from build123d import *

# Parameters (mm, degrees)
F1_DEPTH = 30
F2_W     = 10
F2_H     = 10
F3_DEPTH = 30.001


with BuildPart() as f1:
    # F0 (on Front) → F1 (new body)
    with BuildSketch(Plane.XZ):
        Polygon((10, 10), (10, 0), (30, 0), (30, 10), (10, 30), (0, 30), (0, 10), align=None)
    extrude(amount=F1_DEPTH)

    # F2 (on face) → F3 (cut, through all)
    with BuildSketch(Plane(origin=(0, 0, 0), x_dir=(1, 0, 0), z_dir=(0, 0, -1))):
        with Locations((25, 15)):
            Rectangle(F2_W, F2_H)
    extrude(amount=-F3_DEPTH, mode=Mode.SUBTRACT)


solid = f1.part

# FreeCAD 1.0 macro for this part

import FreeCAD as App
import Part
import Sketcher


def add_polygon(sketch, points):
    """Adds a closed chain of lines whose ends are joined by coincident constraints."""
    first, n = sketch.GeometryCount, len(points)
    for a, b in zip(points, points[1:] + points[:1]):
        sketch.addGeometry(Part.LineSegment(App.Vector(*a, 0), App.Vector(*b, 0)), False)
    for i in range(n):
        sketch.addConstraint(Sketcher.Constraint("Coincident", first + i, 2, first + (i + 1) % n, 1))

doc = App.newDocument("Part")
body = doc.addObject("PartDesign::Body", "Body")

# Sketch on XZ plane
sketch1 = doc.addObject("Sketcher::SketchObject", "Sketch")
body.addObject(sketch1)
sketch1.AttachmentSupport = (doc.XZ_Plane, [""])
sketch1.MapMode = "FlatFace"
add_polygon(sketch1, [(10, 10), (10, 0), (30, 0), (30, 10), (10, 30), (0, 30), (0, 10)])  # lines 0-6
sketch1.addConstraint(Sketcher.Constraint("Vertical", 0))
sketch1.addConstraint(Sketcher.Constraint("Horizontal", 1))
sketch1.addConstraint(Sketcher.Constraint("Vertical", 2))
sketch1.addConstraint(Sketcher.Constraint("Horizontal", 4))
sketch1.addConstraint(Sketcher.Constraint("Vertical", 5))
sketch1.addConstraint(Sketcher.Constraint("Horizontal", 6))
sketch1.addConstraint(Sketcher.Constraint("PointOnObject", 0, 2, -1))
sketch1.addConstraint(Sketcher.Constraint("PointOnObject", 4, 2, -2))
sketch1.addConstraint(Sketcher.Constraint("Horizontal", 2, 2, 5, 2))
sketch1.addConstraint(Sketcher.Constraint("Vertical", 0, 2, 3, 2))
sketch1.addConstraint(Sketcher.Constraint("Equal", 6, 0))
sketch1.addConstraint(Sketcher.Constraint("Equal", 1, 5))
sketch1.addConstraint(Sketcher.Constraint("DistanceX", 1, 1, 1, 2, 20.0))
sketch1.addConstraint(Sketcher.Constraint("DistanceX", 4, 2, 4, 1, 10.0))
pad1 = doc.addObject("PartDesign::Pad", "Pad")
body.addObject(pad1)
pad1.Profile = sketch1
pad1.Length = 30

# Sketch on XY plane
sketch2 = doc.addObject("Sketcher::SketchObject", "Sketch001")
body.addObject(sketch2)
sketch2.AttachmentSupport = (doc.XY_Plane, [""])
sketch2.MapMode = "FlatFace"
add_polygon(sketch2, [(20, -20), (20, -10), (30, -10), (30, -20)])  # lines 0-3
sketch2.addConstraint(Sketcher.Constraint("Vertical", 0))
sketch2.addConstraint(Sketcher.Constraint("Horizontal", 1))
sketch2.addConstraint(Sketcher.Constraint("Vertical", 2))
sketch2.addConstraint(Sketcher.Constraint("Horizontal", 3))
sketch2.addConstraint(Sketcher.Constraint("Equal", 3, 0))
sketch2.addConstraint(Sketcher.Constraint("DistanceX", 1, 1, 1, 2, 10.0))
sketch2.addConstraint(Sketcher.Constraint("DistanceX", -1, 1, 0, 2, 20.0))
sketch2.addConstraint(Sketcher.Constraint("DistanceY", 0, 2, -1, 1, 10.0))
pocket1 = doc.addObject("PartDesign::Pocket", "Pocket")
body.addObject(pocket1)
pocket1.Profile = sketch2
pocket1.Type = "ThroughAll"
pocket1.Reversed = True

doc.recompute()
